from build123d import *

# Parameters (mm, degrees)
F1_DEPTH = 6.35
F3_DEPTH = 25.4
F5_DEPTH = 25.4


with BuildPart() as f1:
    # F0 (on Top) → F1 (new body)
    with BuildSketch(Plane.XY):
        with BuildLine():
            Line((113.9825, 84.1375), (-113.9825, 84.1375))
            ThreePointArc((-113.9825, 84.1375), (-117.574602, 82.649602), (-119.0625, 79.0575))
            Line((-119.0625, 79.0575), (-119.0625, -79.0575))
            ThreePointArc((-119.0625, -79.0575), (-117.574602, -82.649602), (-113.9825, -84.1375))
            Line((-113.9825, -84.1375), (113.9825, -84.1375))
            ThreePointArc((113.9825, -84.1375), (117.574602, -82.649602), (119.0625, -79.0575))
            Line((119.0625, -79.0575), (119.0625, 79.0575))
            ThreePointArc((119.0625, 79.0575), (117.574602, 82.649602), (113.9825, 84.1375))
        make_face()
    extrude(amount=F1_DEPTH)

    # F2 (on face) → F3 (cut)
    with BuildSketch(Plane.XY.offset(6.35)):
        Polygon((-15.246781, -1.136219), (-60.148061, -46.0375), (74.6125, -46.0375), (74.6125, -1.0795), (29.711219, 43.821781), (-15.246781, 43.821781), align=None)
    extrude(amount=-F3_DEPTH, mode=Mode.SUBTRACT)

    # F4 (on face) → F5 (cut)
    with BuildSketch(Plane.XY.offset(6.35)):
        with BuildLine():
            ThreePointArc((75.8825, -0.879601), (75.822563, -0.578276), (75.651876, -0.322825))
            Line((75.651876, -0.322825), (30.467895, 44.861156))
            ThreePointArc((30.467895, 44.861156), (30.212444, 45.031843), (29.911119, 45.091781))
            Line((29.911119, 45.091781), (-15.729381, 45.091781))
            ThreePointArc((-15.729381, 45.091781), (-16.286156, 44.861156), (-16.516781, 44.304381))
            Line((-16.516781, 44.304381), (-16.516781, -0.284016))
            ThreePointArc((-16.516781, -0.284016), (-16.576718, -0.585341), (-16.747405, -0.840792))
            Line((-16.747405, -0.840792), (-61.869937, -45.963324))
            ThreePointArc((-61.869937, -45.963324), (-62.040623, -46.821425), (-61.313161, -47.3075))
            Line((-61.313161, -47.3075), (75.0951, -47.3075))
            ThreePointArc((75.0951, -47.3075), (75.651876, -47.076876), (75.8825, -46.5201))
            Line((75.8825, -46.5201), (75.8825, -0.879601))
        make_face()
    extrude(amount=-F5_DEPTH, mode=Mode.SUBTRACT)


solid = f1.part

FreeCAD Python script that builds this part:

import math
import FreeCAD as App
import Part
import Sketcher

V = App.Vector
Q = App.Units.Quantity

doc = App.newDocument("Part")
body = doc.addObject("PartDesign::Body", "Body")

# Sketch on XY plane
sketch1 = body.newObject("Sketcher::SketchObject", "Sketch")
sketch1.AttachmentSupport = (doc.getObject("XY_Plane"), [""])
sketch1.MapMode = "FlatFace"
sketch1.addGeometry([
    Part.LineSegment(V(113.9825, 84.1375, 0), V(-113.9825, 84.1375, 0)),  # 0
    Part.ArcOfCircle(Part.Circle(V(-113.982498, 79.057498, 0), V(0, 0, 1), 5.080002), math.radians(90.000017), math.radians(179.999983)),  # 1
    Part.LineSegment(V(-119.0625, 79.0575, 0), V(-119.0625, -79.0575, 0)),  # 2
    Part.ArcOfCircle(Part.Circle(V(-113.982498, -79.057498, 0), V(0, 0, 1), 5.080002), math.radians(-179.999983), math.radians(-90.000017)),  # 3
    Part.LineSegment(V(-113.9825, -84.1375, 0), V(113.9825, -84.1375, 0)),  # 4
    Part.ArcOfCircle(Part.Circle(V(113.982498, -79.057498, 0), V(0, 0, 1), 5.080002), math.radians(-89.999983), math.radians(-0.000017)),  # 5
    Part.LineSegment(V(119.0625, -79.0575, 0), V(119.0625, 79.0575, 0)),  # 6
    Part.ArcOfCircle(Part.Circle(V(113.982498, 79.057498, 0), V(0, 0, 1), 5.080002), math.radians(0.000017), math.radians(89.999983)),  # 7
], False)
sketch1.addConstraint([
    Sketcher.Constraint("Tangent", 0, 2, 1, 1),
    Sketcher.Constraint("Tangent", 1, 2, 2, 1),
    Sketcher.Constraint("Tangent", 2, 2, 3, 1),
    Sketcher.Constraint("Tangent", 3, 2, 4, 1),
    Sketcher.Constraint("Tangent", 4, 2, 5, 1),
    Sketcher.Constraint("Tangent", 5, 2, 6, 1),
    Sketcher.Constraint("Tangent", 6, 2, 7, 1),
    Sketcher.Constraint("Tangent", 7, 2, 0, 1),
    Sketcher.Constraint("Horizontal", 0),
    Sketcher.Constraint("Vertical", 2),
    Sketcher.Constraint("Horizontal", 4),
    Sketcher.Constraint("Vertical", 6),
    Sketcher.Constraint("Equal", 1, 3),
    Sketcher.Constraint("Equal", 3, 5),
    Sketcher.Constraint("Equal", 5, 7),
    Sketcher.Constraint("Symmetric", 1, 3, 5, 3, -1, 1),
    Sketcher.Constraint("Radius", 1, Q("0.2000001 in")),
    Sketcher.Constraint("DistanceX", 0, 2, 0, 1, Q("8.975 in")),
    Sketcher.Constraint("DistanceY", 2, 2, 2, 1, Q("6.225 in")),
])
pad1 = body.newObject("PartDesign::Pad", "Pad")
pad1.Profile = sketch1
pad1.Length = Q("0.25 in")

# Sketch on XY plane
sketch2 = body.newObject("Sketcher::SketchObject", "Sketch001")
sketch2.AttachmentSupport = (doc.getObject("XY_Plane"), [""])
sketch2.MapMode = "FlatFace"
sketch2.AttachmentOffset = App.Placement(V(0, 0, 0.25 * 25.4), App.Rotation())
sketch2.addGeometry([
    Part.LineSegment(V(-15.246781, -1.136219, 0), V(-60.148061, -46.0375, 0)),  # 0
    Part.LineSegment(V(-60.148061, -46.0375, 0), V(74.6125, -46.0375, 0)),  # 1
    Part.LineSegment(V(74.6125, -46.0375, 0), V(74.6125, -1.0795, 0)),  # 2
    Part.LineSegment(V(74.6125, -1.0795, 0), V(29.711219, 43.821781, 0)),  # 3
    Part.LineSegment(V(29.711219, 43.821781, 0), V(-15.246781, 43.821781, 0)),  # 4
    Part.LineSegment(V(-15.246781, 43.821781, 0), V(-15.246781, -1.136219, 0)),  # 5
], False)
sketch2.addConstraint([
    Sketcher.Constraint("Coincident", 0, 2, 1, 1),
    Sketcher.Constraint("Coincident", 1, 2, 2, 1),
    Sketcher.Constraint("Coincident", 2, 2, 3, 1),
    Sketcher.Constraint("Coincident", 3, 2, 4, 1),
    Sketcher.Constraint("Coincident", 4, 2, 5, 1),
    Sketcher.Constraint("Coincident", 5, 2, 0, 1),
    Sketcher.Constraint("Horizontal", 1),
    Sketcher.Constraint("Vertical", 2),
    Sketcher.Constraint("Horizontal", 4),
    Sketcher.Constraint("Vertical", 5),
    Sketcher.Constraint("Perpendicular", 0, 3),
    Sketcher.Constraint("Equal", 4, 2),
    Sketcher.Constraint("Equal", 2, 5),
    Sketcher.Constraint("Equal", 0, 3),
    Sketcher.Constraint("Distance", 0, Q("2.5 in")),
    Sketcher.Constraint("DistanceX", 4, 2, 4, 1, Q("1.77 in")),
    Sketcher.Constraint("DistanceY", 0, 2, -1, 1, Q("1.8125 in")),
    Sketcher.Constraint("DistanceX", -1, 1, 1, 2, Q("2.9375 in")),
])
pocket1 = body.newObject("PartDesign::Pocket", "Pocket")
pocket1.Profile = sketch2
pocket1.Length = Q("1 in")

# Sketch on XY plane
sketch3 = body.newObject("Sketcher::SketchObject", "Sketch002")
sketch3.AttachmentSupport = (doc.getObject("XY_Plane"), [""])
sketch3.MapMode = "FlatFace"
sketch3.AttachmentOffset = App.Placement(V(0, 0, 0.25 * 25.4), App.Rotation())
sketch3.addGeometry([
    Part.ArcOfCircle(Part.Circle(V(75.095102, -0.8796, 0), V(0, 0, 1), 0.787398), math.radians(-0.00008), math.radians(45.00005)),  # 0
    Part.LineSegment(V(75.651876, -0.322825, 0), V(30.467895, 44.861156, 0)),  # 1
    Part.ArcOfCircle(Part.Circle(V(29.911116, 44.304376, 0), V(0, 0, 1), 0.787405), math.radians(45.000046), math.radians(89.999809)),  # 2
    Part.LineSegment(V(29.911119, 45.091781, 0), V(-15.729381, 45.091781, 0)),  # 3
    Part.ArcOfCircle(Part.Circle(V(-15.729378, 44.304378, 0), V(0, 0, 1), 0.787403), math.radians(90.000219), math.radians(179.999781)),  # 4
    Part.LineSegment(V(-16.516781, 44.304381, 0), V(-16.516781, -0.284016, 0)),  # 5
    Part.ArcOfCircle(Part.Circle(V(-17.304179, -0.284017, 0), V(0, 0, 1), 0.787398), math.radians(-45.00005), math.radians(0.00008)),  # 6
    Part.LineSegment(V(-16.747405, -0.840792, 0), V(-61.869937, -45.963324, 0)),  # 7
    Part.ArcOfCircle(Part.Circle(V(-61.31316, -46.520099, 0), V(0, 0, 1), 0.787401), math.radians(135.000084), math.radians(269.999921)),  # 8
    Part.LineSegment(V(-61.313161, -47.3075, 0), V(75.0951, -47.3075, 0)),  # 9
    Part.ArcOfCircle(Part.Circle(V(75.0951, -46.5201, 0), V(0, 0, 1), 0.7874), math.radians(-90.00003), math.radians(0.00003)),  # 10
    Part.LineSegment(V(75.8825, -46.5201, 0), V(75.8825, -0.879601, 0)),  # 11
], False)
sketch3.addConstraint([
    Sketcher.Constraint("Tangent", 0, 2, 1, 1),
    Sketcher.Constraint("Tangent", 1, 2, 2, 1),
    Sketcher.Constraint("Coincident", 2, 2, 3, 1),
    Sketcher.Constraint("Coincident", 3, 2, 4, 1),
    Sketcher.Constraint("Coincident", 4, 2, 5, 1),
    Sketcher.Constraint("Tangent", 5, 2, 6, 2),
    Sketcher.Constraint("Tangent", 6, 1, 7, 1),
    Sketcher.Constraint("Tangent", 7, 2, 8, 1),
    Sketcher.Constraint("Tangent", 8, 2, 9, 1),
    Sketcher.Constraint("Tangent", 9, 2, 10, 1),
    Sketcher.Constraint("Tangent", 10, 2, 11, 1),
    Sketcher.Constraint("Tangent", 11, 2, 0, 1),
    Sketcher.Constraint("Horizontal", 3),
    Sketcher.Constraint("Vertical", 5),
    Sketcher.Constraint("Horizontal", 9),
    Sketcher.Constraint("Vertical", 11),
    Sketcher.Constraint("Equal", 2, 4),
    Sketcher.Constraint("Equal", 0, 6),
    Sketcher.Constraint("Equal", 8, 10),
    Sketcher.Constraint("Perpendicular", 1, 7),
    Sketcher.Constraint("Vertical", 0, 3, 10, 3),
    Sketcher.Constraint("Equal", 3, 11),
    Sketcher.Constraint("Angle", 1, Q("135 deg")),
    Sketcher.Constraint("Radius", 0, Q("0.0309999 in")),
    Sketcher.Constraint("Radius", 2, Q("0.0310002 in")),
    Sketcher.Constraint("DistanceX", 6, 3, 3, 2, Q("0.0619999 in")),
    Sketcher.Constraint("DistanceY", 4, 2, 3, 2, Q("0.031 in")),
    Sketcher.Constraint("DistanceX", 3, 2, 3, 1, Q("45.6405 mm")),
    Sketcher.Constraint("DistanceX", -1, 1, 0, 3, Q("2.9565001 in")),
    Sketcher.Constraint("DistanceY", 8, 3, -1, 1, Q("1.8315 in")),
    Sketcher.Constraint("Distance", 1, Q("63.899799 mm")),
    Sketcher.Constraint("DistanceX", 9, 1, 9, 2, Q("136.408261 mm")),
    Sketcher.Constraint("DistanceY", 6, 3, 3, 2, Q("45.375798 mm")),
])
pocket2 = body.newObject("PartDesign::Pocket", "Pocket001")
pocket2.Profile = sketch3
pocket2.Length = Q("1 in")

doc.recompute()
